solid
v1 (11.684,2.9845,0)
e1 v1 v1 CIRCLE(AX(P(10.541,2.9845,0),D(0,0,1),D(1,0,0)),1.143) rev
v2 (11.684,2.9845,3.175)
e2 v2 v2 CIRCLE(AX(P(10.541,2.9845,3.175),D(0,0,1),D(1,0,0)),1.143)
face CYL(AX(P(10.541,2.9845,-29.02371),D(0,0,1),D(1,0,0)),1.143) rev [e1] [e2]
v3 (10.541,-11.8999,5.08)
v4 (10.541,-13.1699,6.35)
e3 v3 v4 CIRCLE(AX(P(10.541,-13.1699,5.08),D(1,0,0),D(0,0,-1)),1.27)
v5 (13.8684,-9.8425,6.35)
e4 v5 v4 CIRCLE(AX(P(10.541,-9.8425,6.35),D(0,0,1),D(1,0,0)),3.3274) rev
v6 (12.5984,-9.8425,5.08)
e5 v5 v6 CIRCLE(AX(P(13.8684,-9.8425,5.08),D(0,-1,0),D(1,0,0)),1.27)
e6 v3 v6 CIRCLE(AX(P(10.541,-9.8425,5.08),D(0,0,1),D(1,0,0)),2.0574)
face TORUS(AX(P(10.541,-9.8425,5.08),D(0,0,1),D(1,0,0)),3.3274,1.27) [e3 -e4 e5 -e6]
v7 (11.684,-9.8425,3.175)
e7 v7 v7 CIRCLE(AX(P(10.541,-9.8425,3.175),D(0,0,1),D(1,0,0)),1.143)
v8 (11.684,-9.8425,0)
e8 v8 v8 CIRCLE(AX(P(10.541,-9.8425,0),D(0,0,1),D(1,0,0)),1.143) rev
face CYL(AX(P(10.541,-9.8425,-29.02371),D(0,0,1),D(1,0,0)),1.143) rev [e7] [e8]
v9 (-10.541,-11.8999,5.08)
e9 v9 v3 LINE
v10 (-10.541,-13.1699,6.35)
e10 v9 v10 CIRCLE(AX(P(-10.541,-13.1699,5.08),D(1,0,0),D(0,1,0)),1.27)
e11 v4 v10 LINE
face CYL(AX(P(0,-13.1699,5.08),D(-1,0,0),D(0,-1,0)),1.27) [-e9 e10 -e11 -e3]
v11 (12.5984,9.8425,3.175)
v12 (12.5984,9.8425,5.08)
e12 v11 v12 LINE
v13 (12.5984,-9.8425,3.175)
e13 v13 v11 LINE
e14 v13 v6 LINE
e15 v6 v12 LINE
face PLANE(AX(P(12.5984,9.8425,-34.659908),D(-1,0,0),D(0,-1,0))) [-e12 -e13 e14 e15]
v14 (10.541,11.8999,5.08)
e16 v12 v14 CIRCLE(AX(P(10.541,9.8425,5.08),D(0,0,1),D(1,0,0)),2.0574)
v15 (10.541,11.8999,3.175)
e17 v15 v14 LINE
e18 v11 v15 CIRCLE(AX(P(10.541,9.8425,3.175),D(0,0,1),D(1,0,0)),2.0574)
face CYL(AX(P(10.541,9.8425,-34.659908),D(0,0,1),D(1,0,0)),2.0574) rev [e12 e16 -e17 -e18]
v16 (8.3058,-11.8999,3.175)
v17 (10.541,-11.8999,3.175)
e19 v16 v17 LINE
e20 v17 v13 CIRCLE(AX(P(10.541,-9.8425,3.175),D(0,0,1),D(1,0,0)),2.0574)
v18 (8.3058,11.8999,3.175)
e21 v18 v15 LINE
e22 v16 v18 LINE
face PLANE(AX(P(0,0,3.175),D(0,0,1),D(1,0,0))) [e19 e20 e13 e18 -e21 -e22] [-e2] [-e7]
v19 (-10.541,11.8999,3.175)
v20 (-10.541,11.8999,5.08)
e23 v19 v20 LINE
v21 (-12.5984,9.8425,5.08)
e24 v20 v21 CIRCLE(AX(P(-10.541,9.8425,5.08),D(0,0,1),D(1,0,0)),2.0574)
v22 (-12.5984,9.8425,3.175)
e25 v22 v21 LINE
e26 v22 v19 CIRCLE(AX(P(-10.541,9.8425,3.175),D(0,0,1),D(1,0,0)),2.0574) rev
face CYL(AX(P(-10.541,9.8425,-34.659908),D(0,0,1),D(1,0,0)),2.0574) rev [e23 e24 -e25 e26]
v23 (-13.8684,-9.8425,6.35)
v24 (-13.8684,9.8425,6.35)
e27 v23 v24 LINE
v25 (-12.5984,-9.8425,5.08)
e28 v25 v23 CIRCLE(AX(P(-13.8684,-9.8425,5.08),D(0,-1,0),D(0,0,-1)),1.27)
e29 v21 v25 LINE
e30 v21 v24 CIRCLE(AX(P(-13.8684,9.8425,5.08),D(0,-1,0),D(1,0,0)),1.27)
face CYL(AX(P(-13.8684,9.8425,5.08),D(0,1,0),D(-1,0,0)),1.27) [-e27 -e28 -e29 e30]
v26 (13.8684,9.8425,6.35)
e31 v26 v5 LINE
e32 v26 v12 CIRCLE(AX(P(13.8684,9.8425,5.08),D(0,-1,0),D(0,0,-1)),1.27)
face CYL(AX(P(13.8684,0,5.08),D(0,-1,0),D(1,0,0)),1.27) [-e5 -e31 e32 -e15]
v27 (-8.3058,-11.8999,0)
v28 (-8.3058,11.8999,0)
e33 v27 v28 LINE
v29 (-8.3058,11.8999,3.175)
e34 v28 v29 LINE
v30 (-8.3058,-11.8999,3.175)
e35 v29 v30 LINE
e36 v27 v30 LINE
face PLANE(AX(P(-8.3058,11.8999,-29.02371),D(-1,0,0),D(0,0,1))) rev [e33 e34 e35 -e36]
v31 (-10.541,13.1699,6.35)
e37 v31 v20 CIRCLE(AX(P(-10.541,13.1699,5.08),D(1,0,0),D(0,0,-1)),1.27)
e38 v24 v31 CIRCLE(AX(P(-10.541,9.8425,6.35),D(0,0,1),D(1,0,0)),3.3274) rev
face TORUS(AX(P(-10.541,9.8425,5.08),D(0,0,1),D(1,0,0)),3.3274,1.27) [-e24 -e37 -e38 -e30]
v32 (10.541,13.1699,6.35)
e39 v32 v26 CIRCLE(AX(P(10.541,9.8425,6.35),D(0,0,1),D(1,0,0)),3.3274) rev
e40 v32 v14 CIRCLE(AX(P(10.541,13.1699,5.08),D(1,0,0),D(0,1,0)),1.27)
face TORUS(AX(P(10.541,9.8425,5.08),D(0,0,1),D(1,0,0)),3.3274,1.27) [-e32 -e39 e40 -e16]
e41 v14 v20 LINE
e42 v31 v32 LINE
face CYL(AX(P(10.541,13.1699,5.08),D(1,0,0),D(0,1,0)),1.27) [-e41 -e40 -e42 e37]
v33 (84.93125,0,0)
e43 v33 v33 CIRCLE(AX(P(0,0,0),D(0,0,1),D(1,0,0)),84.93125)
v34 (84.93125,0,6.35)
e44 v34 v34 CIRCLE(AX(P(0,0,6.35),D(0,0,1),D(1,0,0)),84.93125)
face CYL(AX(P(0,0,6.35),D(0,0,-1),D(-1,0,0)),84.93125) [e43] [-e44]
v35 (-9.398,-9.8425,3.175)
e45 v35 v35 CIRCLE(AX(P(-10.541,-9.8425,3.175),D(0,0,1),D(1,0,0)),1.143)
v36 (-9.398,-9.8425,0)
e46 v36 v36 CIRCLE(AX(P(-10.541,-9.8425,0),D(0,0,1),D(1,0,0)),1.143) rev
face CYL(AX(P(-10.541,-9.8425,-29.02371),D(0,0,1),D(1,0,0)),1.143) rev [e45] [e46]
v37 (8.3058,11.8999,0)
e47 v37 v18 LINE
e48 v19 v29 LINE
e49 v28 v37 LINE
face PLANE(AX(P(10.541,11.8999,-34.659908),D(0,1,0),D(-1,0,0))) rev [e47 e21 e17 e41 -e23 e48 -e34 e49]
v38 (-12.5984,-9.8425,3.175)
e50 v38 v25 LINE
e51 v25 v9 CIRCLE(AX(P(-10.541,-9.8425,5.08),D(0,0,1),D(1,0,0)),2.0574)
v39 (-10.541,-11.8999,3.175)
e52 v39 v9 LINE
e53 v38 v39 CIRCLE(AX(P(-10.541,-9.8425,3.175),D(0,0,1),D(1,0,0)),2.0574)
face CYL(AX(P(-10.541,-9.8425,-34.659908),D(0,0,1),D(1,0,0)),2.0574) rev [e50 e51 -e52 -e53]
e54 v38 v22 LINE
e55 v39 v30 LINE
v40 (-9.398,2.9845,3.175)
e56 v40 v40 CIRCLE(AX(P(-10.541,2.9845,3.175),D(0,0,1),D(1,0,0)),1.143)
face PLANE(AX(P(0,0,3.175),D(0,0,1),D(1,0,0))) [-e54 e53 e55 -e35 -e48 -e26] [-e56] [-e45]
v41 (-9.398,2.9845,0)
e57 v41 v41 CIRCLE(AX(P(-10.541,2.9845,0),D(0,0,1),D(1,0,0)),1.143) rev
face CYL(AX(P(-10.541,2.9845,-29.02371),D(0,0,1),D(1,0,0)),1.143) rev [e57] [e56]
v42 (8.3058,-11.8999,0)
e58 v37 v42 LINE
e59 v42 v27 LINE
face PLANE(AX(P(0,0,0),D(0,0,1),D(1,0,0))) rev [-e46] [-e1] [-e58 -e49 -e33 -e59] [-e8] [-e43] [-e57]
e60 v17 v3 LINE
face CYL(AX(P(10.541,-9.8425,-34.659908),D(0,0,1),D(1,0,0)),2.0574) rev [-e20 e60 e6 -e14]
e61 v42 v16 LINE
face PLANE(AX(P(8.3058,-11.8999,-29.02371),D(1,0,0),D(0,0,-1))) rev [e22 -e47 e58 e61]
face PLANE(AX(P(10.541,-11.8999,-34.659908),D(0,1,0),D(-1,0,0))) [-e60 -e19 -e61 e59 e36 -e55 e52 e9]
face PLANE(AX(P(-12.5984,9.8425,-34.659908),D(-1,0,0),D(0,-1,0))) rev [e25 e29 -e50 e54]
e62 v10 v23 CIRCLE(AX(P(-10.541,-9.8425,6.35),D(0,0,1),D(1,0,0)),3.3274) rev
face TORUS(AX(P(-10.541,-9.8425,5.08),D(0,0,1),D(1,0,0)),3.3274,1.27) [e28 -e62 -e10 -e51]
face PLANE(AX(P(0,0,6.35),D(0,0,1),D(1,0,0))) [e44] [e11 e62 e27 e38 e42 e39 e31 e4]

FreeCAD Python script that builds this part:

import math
import FreeCAD as App
import Part
import Sketcher
Q = App.Units.Quantity


def edges_at(feature, points):
    """Names of the edges that pass closest to the given points."""
    edges = feature.Shape.Edges
    near = lambda p: min(range(len(edges)), key=lambda i: edges[i].distToShape(Part.Vertex(*p))[0])
    return sorted({f"Edge{near(p) + 1}" for p in points})


def add_polygon(sketch, points):
    """Adds a closed chain of lines whose ends are joined by coincident constraints."""
    first, n = sketch.GeometryCount, len(points)
    for a, b in zip(points, points[1:] + points[:1]):
        sketch.addGeometry(Part.LineSegment(App.Vector(*a, 0), App.Vector(*b, 0)), False)
    for i in range(n):
        sketch.addConstraint(Sketcher.Constraint("Coincident", first + i, 2, first + (i + 1) % n, 1))

doc = App.newDocument("Part")
body = doc.addObject("PartDesign::Body", "Body")

sketch1 = body.newObject("Sketcher::SketchObject", "Sketch")
sketch1.AttachmentSupport = (doc.getObject("XY_Plane"), [""])
sketch1.MapMode = "FlatFace"
sketch1.addGeometry(Part.Circle(App.Vector(0, 0, 0), App.Vector(0, 0, 1), 85), False)
sketch1.addConstraint(Sketcher.Constraint("Coincident", 0, 3, -1, 1))
sketch1.addConstraint(Sketcher.Constraint("Diameter", 0, Q("6.6875 in")))
pad1 = body.newObject("PartDesign::Pad", "Pad")
pad1.Profile = sketch1
pad1.Length = Q("0.25 in")

sketch2 = body.newObject("Sketcher::SketchObject", "Sketch001")
sketch2.AttachmentSupport = (doc.getObject("XY_Plane"), [""])
sketch2.MapMode = "FlatFace"
sketch2.AttachmentOffset = App.Placement(App.Vector(0, 0, 0.25 * 25.4), App.Rotation())
sketch2.addGeometry(Part.LineSegment(App.Vector(10.5, 11.9, 0), App.Vector(-10.5, 11.9, 0)), False)
sketch2.addGeometry(Part.ArcOfCircle(Part.Circle(App.Vector(-10.5, 9.8, 0), App.Vector(0, 0, 1), 2.1), math.radians(90), math.radians(180)), False)
sketch2.addGeometry(Part.LineSegment(App.Vector(-12.6, 9.8, 0), App.Vector(-12.6, -9.8, 0)), False)
sketch2.addGeometry(Part.ArcOfCircle(Part.Circle(App.Vector(-10.5, -9.8, 0), App.Vector(0, 0, 1), 2.1), math.radians(180), math.radians(270)), False)
sketch2.addGeometry(Part.LineSegment(App.Vector(-10.5, -11.9, 0), App.Vector(10.5, -11.9, 0)), False)
sketch2.addGeometry(Part.ArcOfCircle(Part.Circle(App.Vector(10.5, -9.8, 0), App.Vector(0, 0, 1), 2.1), math.radians(-90), math.radians(0)), False)
sketch2.addGeometry(Part.LineSegment(App.Vector(12.6, -9.8, 0), App.Vector(12.6, 9.8, 0)), False)
sketch2.addGeometry(Part.ArcOfCircle(Part.Circle(App.Vector(10.5, 9.8, 0), App.Vector(0, 0, 1), 2.1), math.radians(0), math.radians(90)), False)
sketch2.addConstraint(Sketcher.Constraint("Tangent", 0, 2, 1, 1))
sketch2.addConstraint(Sketcher.Constraint("Tangent", 1, 2, 2, 1))
sketch2.addConstraint(Sketcher.Constraint("Tangent", 2, 2, 3, 1))
sketch2.addConstraint(Sketcher.Constraint("Tangent", 3, 2, 4, 1))
sketch2.addConstraint(Sketcher.Constraint("Tangent", 4, 2, 5, 1))
sketch2.addConstraint(Sketcher.Constraint("Tangent", 5, 2, 6, 1))
sketch2.addConstraint(Sketcher.Constraint("Tangent", 6, 2, 7, 1))
sketch2.addConstraint(Sketcher.Constraint("Tangent", 7, 2, 0, 1))
sketch2.addConstraint(Sketcher.Constraint("Horizontal", 0))
sketch2.addConstraint(Sketcher.Constraint("Vertical", 2))
sketch2.addConstraint(Sketcher.Constraint("Horizontal", 4))
sketch2.addConstraint(Sketcher.Constraint("Vertical", 6))
sketch2.addConstraint(Sketcher.Constraint("Equal", 1, 3))
sketch2.addConstraint(Sketcher.Constraint("Equal", 3, 5))
sketch2.addConstraint(Sketcher.Constraint("Equal", 5, 7))
sketch2.addConstraint(Sketcher.Constraint("Symmetric", 1, 3, 5, 3, -1, 1))
sketch2.addConstraint(Sketcher.Constraint("Radius", 1, Q("0.081 in")))
sketch2.addConstraint(Sketcher.Constraint("DistanceX", 0, 2, 0, 1, Q("0.83 in")))
sketch2.addConstraint(Sketcher.Constraint("DistanceY", 2, 2, 2, 1, Q("0.775 in")))
pocket1 = body.newObject("PartDesign::Pocket", "Pocket")
pocket1.Profile = sketch2
pocket1.Length = Q("0.125 in")

sketch3 = body.newObject("Sketcher::SketchObject", "Sketch002")
sketch3.AttachmentSupport = (doc.getObject("XY_Plane"), [""])
sketch3.MapMode = "FlatFace"
sketch3.AttachmentOffset = App.Placement(App.Vector(0, 0, 0.125 * 25.4), App.Rotation())
sketch3.addGeometry(Part.Circle(App.Vector(10.5, -9.8, 0), App.Vector(0, 0, 1), 1.1), False)
sketch3.addGeometry(Part.Circle(App.Vector(-10.5, -9.8, 0), App.Vector(0, 0, 1), 1.1), False)
sketch3.addGeometry(Part.Circle(App.Vector(10.5, 3, 0), App.Vector(0, 0, 1), 1.1), False)
sketch3.addGeometry(Part.Circle(App.Vector(-10.5, 3, 0), App.Vector(0, 0, 1), 1.1), False)
add_polygon(sketch3, [(-8.3, 11.9), (-8.3, -11.9), (8.3, -11.9), (8.3, 11.9)])
sketch3.addConstraint(Sketcher.Constraint("Vertical", 4))
sketch3.addConstraint(Sketcher.Constraint("Horizontal", 5))
sketch3.addConstraint(Sketcher.Constraint("Vertical", 6))
sketch3.addConstraint(Sketcher.Constraint("Horizontal", 7))
sketch3.addConstraint(Sketcher.Constraint("Equal", 0, 1))
sketch3.addConstraint(Sketcher.Constraint("Equal", 1, 2))
sketch3.addConstraint(Sketcher.Constraint("Equal", 2, 3))
sketch3.addConstraint(Sketcher.Constraint("Symmetric", 4, 2, 6, 2, -1, 1))
sketch3.addConstraint(Sketcher.Constraint("Symmetric", 0, 3, 1, 3, -2))
sketch3.addConstraint(Sketcher.Constraint("Symmetric", 2, 3, 3, 3, -2))
sketch3.addConstraint(Sketcher.Constraint("Vertical", 0, 3, 2, 3))
sketch3.addConstraint(Sketcher.Constraint("Diameter", 0, Q("0.09 in")))
sketch3.addConstraint(Sketcher.Constraint("DistanceX", 5, 1, 5, 2, Q("0.654 in")))
sketch3.addConstraint(Sketcher.Constraint("DistanceY", 4, 2, 4, 1, Q("0.937 in")))
sketch3.addConstraint(Sketcher.Constraint("DistanceX", 1, 3, 0, 3, Q("0.83 in")))
sketch3.addConstraint(Sketcher.Constraint("DistanceY", 0, 3, 2, 3, Q("0.505 in")))
sketch3.addConstraint(Sketcher.Constraint("DistanceY", 4, 2, 1, 3, Q("0.081 in")))
pocket2 = body.newObject("PartDesign::Pocket", "Pocket001")
pocket2.Profile = sketch3
pocket2.Length = Q("0.125 in")
doc.recompute()

fillet = body.newObject("PartDesign::Fillet", "Fillet")
fillet.Base = (pocket2, edges_at(pocket2, [
    (-12.598, 0, 6.35),
    (11.996, -11.297, 6.35),
    (12.598, 0, 6.35),
    (11.996, 11.297, 6.35),
    (-11.996, -11.297, 6.35),
    (0, -11.9, 6.35),
    (0, 11.9, 6.35),
    (-11.996, 11.297, 6.35),
]))
fillet.Radius = Q("0.05 in")

doc.recompute()
